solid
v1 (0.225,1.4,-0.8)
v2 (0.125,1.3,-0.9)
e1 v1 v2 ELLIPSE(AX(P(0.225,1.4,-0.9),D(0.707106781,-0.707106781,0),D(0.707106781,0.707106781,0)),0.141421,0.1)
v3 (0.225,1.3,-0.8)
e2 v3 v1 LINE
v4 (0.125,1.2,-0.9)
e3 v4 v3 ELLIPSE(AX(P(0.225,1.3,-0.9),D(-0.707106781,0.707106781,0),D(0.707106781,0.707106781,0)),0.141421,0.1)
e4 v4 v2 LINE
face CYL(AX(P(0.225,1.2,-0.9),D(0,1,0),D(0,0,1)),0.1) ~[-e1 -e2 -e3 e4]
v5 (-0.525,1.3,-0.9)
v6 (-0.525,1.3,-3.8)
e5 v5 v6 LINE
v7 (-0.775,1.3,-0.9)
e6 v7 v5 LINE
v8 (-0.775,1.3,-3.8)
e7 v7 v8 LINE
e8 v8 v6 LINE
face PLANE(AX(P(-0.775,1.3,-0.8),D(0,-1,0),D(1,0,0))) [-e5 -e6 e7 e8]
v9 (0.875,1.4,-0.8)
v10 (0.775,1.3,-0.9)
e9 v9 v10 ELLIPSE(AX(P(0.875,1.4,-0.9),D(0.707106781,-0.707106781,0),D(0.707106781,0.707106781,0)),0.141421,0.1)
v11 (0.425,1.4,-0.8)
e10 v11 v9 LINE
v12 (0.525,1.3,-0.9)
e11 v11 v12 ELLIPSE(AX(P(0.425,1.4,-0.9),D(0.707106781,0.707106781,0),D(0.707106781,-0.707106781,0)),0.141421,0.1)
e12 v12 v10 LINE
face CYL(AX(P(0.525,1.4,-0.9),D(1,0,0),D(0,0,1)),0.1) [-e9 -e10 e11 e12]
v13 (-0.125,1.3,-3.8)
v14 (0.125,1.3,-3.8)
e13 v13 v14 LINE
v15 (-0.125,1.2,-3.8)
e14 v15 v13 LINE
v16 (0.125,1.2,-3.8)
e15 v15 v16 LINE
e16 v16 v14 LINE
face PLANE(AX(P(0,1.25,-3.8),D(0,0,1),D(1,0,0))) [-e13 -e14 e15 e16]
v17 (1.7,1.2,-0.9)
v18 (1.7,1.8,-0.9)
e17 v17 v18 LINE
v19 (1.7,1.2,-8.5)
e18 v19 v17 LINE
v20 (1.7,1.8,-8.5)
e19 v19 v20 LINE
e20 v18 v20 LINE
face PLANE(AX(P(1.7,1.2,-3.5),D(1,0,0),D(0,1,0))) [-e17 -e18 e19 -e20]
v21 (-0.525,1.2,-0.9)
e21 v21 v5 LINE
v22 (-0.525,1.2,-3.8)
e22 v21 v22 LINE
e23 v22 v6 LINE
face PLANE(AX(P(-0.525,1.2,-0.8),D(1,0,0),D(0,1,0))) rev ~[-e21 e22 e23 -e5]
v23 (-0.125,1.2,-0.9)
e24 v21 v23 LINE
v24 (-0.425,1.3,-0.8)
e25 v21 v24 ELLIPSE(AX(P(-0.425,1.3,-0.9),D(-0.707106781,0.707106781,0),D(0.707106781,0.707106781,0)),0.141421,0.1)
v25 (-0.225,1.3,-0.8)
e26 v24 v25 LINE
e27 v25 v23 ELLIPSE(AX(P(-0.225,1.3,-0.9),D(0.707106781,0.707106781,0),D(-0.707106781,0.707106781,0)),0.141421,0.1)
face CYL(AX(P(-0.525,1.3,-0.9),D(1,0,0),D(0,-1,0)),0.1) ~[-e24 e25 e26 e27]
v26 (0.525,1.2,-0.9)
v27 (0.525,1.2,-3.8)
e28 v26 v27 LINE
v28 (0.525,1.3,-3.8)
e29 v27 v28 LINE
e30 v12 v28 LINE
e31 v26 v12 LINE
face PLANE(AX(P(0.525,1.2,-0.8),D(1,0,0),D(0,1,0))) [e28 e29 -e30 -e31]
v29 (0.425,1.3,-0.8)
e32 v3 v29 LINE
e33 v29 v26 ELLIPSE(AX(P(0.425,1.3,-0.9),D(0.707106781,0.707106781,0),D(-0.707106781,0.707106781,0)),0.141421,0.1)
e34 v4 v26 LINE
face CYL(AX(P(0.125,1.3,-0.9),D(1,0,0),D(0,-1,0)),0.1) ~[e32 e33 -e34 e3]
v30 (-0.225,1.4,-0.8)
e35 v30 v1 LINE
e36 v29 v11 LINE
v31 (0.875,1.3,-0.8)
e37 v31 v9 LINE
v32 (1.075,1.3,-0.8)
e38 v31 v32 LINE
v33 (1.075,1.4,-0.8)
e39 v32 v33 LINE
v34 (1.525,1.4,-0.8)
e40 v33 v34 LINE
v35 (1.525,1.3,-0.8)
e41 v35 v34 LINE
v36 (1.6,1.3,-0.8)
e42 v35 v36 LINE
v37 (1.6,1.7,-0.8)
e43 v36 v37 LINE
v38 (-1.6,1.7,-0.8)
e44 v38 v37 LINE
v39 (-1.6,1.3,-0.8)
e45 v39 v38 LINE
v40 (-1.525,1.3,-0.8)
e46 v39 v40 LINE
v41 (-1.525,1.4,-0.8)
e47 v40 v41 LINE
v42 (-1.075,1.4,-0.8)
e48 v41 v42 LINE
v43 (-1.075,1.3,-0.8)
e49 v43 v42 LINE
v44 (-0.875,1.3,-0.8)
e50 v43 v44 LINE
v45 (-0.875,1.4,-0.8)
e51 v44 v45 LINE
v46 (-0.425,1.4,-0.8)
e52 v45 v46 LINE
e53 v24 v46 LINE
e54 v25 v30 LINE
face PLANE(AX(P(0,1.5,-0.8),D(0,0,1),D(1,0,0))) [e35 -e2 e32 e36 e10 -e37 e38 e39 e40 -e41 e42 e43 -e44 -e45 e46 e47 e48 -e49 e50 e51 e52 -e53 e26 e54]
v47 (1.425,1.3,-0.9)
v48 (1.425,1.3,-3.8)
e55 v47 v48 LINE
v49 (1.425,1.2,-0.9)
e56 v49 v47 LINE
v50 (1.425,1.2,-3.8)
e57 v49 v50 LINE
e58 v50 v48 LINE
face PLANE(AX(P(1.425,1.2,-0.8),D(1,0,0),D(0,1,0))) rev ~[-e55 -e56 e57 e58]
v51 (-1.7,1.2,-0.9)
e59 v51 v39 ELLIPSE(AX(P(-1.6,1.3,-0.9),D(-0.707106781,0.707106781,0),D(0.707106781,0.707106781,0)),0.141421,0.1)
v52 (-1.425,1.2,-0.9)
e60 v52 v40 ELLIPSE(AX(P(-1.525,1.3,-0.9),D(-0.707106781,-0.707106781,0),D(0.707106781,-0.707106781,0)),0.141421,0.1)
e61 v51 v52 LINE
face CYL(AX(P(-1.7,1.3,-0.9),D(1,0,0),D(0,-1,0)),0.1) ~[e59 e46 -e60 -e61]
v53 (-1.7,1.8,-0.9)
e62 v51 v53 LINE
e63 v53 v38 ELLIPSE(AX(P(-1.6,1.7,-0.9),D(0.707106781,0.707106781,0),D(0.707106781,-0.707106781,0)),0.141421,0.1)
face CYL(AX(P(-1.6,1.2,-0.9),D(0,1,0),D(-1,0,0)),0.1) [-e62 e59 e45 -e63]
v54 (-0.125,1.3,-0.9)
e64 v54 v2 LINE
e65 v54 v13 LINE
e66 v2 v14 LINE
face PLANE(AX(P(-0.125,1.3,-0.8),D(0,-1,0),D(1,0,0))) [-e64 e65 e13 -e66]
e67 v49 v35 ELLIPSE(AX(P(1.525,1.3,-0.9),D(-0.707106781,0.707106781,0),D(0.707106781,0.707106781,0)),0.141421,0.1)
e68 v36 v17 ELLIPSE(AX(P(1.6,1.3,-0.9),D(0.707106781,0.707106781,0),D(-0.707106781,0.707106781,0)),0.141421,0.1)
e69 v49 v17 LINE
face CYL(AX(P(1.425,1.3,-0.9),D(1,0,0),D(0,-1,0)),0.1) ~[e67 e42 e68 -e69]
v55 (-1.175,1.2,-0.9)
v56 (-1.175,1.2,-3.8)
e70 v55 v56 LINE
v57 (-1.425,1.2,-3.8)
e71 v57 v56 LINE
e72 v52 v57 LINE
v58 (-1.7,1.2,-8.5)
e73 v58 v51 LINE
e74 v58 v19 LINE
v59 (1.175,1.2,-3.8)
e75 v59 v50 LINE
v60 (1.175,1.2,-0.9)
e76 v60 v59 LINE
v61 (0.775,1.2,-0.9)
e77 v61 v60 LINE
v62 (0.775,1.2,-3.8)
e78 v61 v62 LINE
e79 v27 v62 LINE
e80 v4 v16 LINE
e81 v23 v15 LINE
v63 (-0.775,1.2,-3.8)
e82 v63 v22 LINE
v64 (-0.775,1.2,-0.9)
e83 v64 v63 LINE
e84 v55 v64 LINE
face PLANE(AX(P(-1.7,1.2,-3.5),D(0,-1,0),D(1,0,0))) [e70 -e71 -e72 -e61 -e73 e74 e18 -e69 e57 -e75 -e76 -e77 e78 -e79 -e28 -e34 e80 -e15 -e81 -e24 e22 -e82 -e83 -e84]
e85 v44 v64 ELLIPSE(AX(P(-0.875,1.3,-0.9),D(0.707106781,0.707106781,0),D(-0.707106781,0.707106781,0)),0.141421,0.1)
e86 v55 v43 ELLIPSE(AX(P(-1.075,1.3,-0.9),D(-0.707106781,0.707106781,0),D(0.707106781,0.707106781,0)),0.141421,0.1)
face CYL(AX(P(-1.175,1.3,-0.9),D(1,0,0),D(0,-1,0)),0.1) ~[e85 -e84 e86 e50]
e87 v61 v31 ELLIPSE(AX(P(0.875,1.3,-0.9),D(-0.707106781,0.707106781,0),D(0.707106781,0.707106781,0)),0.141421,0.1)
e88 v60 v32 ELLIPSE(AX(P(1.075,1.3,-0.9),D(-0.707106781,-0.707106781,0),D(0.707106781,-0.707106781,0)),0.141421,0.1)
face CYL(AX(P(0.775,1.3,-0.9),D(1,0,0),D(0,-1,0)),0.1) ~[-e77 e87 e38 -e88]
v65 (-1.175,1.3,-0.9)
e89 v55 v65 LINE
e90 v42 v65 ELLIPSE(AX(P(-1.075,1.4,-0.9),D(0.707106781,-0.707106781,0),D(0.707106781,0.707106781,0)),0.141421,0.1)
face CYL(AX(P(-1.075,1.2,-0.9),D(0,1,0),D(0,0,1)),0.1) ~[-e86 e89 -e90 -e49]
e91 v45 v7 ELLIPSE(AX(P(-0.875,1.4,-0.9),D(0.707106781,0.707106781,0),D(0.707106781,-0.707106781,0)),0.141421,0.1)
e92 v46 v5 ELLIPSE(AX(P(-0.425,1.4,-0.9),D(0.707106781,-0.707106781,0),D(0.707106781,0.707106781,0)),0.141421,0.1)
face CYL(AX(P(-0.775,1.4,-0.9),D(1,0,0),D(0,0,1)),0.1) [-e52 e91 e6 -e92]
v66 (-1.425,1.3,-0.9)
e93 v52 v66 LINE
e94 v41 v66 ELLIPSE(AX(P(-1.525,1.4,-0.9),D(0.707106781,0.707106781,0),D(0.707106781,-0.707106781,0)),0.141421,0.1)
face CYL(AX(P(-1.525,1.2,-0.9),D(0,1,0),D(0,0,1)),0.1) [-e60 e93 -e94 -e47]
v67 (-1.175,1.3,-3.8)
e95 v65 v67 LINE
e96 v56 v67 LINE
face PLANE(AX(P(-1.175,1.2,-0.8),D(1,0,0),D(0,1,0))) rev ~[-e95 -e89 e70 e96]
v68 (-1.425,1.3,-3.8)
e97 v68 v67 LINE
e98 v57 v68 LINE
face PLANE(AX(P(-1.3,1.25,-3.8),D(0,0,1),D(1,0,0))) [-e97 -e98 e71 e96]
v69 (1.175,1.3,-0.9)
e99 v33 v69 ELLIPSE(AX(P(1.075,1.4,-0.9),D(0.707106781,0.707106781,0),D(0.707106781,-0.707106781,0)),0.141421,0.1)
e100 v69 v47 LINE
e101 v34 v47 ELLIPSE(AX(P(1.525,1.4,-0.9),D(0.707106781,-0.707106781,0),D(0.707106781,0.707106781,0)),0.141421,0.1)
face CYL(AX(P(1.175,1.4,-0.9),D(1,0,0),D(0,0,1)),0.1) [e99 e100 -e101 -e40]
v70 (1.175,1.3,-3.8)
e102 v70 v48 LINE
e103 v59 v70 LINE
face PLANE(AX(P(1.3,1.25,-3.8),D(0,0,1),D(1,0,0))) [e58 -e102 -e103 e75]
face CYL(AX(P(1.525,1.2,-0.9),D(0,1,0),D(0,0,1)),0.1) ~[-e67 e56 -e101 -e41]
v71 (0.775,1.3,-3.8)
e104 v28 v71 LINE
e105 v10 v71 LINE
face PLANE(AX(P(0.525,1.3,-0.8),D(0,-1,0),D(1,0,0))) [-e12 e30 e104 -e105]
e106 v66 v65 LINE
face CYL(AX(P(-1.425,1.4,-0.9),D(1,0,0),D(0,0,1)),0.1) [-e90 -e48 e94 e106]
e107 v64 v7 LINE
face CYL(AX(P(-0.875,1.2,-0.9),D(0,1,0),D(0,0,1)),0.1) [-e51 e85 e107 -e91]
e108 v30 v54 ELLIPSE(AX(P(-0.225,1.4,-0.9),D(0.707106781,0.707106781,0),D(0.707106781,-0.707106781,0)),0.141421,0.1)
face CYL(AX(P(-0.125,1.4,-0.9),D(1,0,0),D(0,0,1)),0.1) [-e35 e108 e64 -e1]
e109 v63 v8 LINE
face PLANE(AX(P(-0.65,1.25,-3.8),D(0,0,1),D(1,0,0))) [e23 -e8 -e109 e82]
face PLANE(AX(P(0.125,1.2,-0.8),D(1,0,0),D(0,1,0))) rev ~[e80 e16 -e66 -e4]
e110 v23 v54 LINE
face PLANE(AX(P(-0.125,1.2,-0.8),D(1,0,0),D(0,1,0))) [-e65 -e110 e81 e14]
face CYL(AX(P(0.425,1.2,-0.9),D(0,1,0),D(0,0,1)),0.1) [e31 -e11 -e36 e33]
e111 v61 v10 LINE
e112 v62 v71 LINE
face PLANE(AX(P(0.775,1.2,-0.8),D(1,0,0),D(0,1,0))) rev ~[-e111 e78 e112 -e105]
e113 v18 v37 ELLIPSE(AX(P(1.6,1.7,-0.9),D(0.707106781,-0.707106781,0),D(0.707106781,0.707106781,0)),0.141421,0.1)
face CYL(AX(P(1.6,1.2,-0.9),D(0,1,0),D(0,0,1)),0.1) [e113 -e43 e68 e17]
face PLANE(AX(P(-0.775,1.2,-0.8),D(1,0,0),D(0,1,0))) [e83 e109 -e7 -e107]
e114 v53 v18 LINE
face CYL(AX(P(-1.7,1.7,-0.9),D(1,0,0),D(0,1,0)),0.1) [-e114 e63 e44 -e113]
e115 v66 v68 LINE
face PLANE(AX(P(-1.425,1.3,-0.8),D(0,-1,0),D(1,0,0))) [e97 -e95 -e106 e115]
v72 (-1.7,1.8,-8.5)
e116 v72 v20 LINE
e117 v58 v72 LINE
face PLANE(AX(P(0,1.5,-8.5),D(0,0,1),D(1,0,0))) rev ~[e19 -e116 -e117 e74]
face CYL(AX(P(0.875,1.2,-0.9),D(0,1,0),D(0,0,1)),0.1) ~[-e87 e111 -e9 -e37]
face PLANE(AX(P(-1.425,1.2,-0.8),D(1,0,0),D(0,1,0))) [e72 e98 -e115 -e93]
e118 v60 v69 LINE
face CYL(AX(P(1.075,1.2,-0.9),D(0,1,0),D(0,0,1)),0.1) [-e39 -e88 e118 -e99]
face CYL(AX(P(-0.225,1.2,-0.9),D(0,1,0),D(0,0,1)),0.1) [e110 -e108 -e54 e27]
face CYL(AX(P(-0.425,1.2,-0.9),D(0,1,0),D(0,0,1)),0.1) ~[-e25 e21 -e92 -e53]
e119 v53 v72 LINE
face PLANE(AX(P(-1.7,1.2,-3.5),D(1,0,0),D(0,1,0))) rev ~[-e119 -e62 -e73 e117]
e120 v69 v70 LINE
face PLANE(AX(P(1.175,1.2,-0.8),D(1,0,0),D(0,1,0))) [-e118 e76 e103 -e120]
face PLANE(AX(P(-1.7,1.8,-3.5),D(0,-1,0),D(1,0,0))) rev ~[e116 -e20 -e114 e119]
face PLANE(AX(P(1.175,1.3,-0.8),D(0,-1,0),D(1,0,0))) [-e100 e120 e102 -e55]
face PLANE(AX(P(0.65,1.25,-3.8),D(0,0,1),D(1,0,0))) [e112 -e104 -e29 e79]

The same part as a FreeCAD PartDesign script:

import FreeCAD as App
import Part
import Sketcher

V = App.Vector


def edges_at(feature, points):
    """Names of the edges that pass closest to the given points."""
    edges = feature.Shape.Edges
    near = lambda p: min(range(len(edges)), key=lambda i: edges[i].distToShape(Part.Vertex(*p))[0])
    return sorted({f"Edge{near(p) + 1}" for p in points})


def add_polygon(sketch, points):
    """Adds a closed chain of lines whose ends are joined by coincident constraints."""
    first, n = sketch.GeometryCount, len(points)
    for a, b in zip(points, points[1:] + points[:1]):
        sketch.addGeometry(Part.LineSegment(App.Vector(*a, 0), App.Vector(*b, 0)), False)
    for i in range(n):
        sketch.addConstraint(Sketcher.Constraint("Coincident", first + i, 2, first + (i + 1) % n, 1))

doc = App.newDocument("Part")
body = doc.addObject("PartDesign::Body", "Body")

sketch1 = body.newObject("Sketcher::SketchObject", "Sketch")
sketch1.AttachmentSupport = (doc.getObject("XY_Plane"), [""])
sketch1.MapMode = "FlatFace"
sketch1.AttachmentOffset = App.Placement(V(0, 0, -3.5), App.Rotation())
add_polygon(sketch1, [(-1.7, 1.8), (-1.7, 1.2), (1.7, 1.2), (1.7, 1.8)])
sketch1.addConstraint([
    Sketcher.Constraint("Vertical", 0),
    Sketcher.Constraint("Horizontal", 1),
    Sketcher.Constraint("Vertical", 2),
    Sketcher.Constraint("Horizontal", 3),
    Sketcher.Constraint("DistanceX", 1, 1, 1, 2, 3.4),
    Sketcher.Constraint("DistanceY", 0, 2, 0, 1, 0.6),
    Sketcher.Constraint("DistanceX", 0, 2, -1, 1, 1.7),
    Sketcher.Constraint("DistanceY", -1, 1, 0, 2, 1.2),
])
pad1 = body.newObject("PartDesign::Pad", "Pad")
pad1.Profile = sketch1
pad1.Type = "TwoLengths"
pad1.Length = 2.7
pad1.Length2 = 5

sketch2 = body.newObject("Sketcher::SketchObject", "Sketch001")
sketch2.AttachmentSupport = (doc.getObject("XY_Plane"), [""])
sketch2.MapMode = "FlatFace"
sketch2.AttachmentOffset = App.Placement(V(0, 0, -0.8), App.Rotation())
add_polygon(sketch2, [(-1.43, 1.3), (-1.43, 1.2), (-1.18, 1.2), (-1.18, 1.3)])
add_polygon(sketch2, [(-0.78, 1.3), (-0.78, 1.2), (-0.53, 1.2), (-0.53, 1.3)])
add_polygon(sketch2, [(-0.12, 1.3), (-0.12, 1.2), (0.12, 1.2), (0.12, 1.3)])
add_polygon(sketch2, [(0.53, 1.3), (0.53, 1.2), (0.78, 1.2), (0.78, 1.3)])
add_polygon(sketch2, [(1.18, 1.3), (1.18, 1.2), (1.43, 1.2), (1.43, 1.3)])
sketch2.addConstraint([
    Sketcher.Constraint("Vertical", 0),
    Sketcher.Constraint("Horizontal", 1),
    Sketcher.Constraint("Vertical", 2),
    Sketcher.Constraint("Horizontal", 3),
    Sketcher.Constraint("Vertical", 4),
    Sketcher.Constraint("Horizontal", 5),
    Sketcher.Constraint("Vertical", 6),
    Sketcher.Constraint("Horizontal", 7),
    Sketcher.Constraint("Vertical", 8),
    Sketcher.Constraint("Horizontal", 9),
    Sketcher.Constraint("Vertical", 10),
    Sketcher.Constraint("Horizontal", 11),
    Sketcher.Constraint("Vertical", 12),
    Sketcher.Constraint("Horizontal", 13),
    Sketcher.Constraint("Vertical", 14),
    Sketcher.Constraint("Horizontal", 15),
    Sketcher.Constraint("Vertical", 16),
    Sketcher.Constraint("Horizontal", 17),
    Sketcher.Constraint("Vertical", 18),
    Sketcher.Constraint("Horizontal", 19),
    Sketcher.Constraint("Symmetric", 5, 2, 12, 2, -2),
    Sketcher.Constraint("Symmetric", 7, 2, 14, 2, -2),
    Sketcher.Constraint("Symmetric", 1, 2, 16, 2, -2),
    Sketcher.Constraint("Symmetric", 3, 2, 18, 2, -2),
    Sketcher.Constraint("Horizontal", 1, 2, 4, 2),
    Sketcher.Constraint("Horizontal", 3, 2, 6, 2),
    Sketcher.Constraint("Horizontal", 5, 2, 8, 2),
    Sketcher.Constraint("Horizontal", 7, 2, 10, 2),
    Sketcher.Constraint("Equal", 3, 5),
    Sketcher.Constraint("Equal", 7, 9),
    Sketcher.Constraint("DistanceY", 0, 2, 0, 1, 0.1),
    Sketcher.Constraint("DistanceX", 1, 1, 1, 2, 0.25),
    Sketcher.Constraint("DistanceY", -1, 1, 0, 2, 1.2),
    Sketcher.Constraint("DistanceX", 1, 2, 4, 2, 0.4),
    Sketcher.Constraint("DistanceX", 5, 2, 8, 2, 0.4),
    Sketcher.Constraint("DistanceX", 9, 2, 12, 2, 0.4),
])
pocket1 = body.newObject("PartDesign::Pocket", "Pocket")
pocket1.Profile = sketch2
pocket1.Length = 3
doc.recompute()

fillet = body.newObject("PartDesign::Fillet", "Fillet")
fillet.Base = (pocket1, edges_at(pocket1, [
    (0, 1.8, -0.8),
    (1.7, 1.5, -0.8),
    (1.562, 1.2, -0.8),
    (-1.562, 1.2, -0.8),
    (-1.7, 1.5, -0.8),
    (0.975, 1.2, -0.8),
    (0.775, 1.25, -0.8),
    (0.65, 1.3, -0.8),
    (0.525, 1.25, -0.8),
    (0.325, 1.2, -0.8),
    (0.125, 1.25, -0.8),
    (0, 1.3, -0.8),
    (-0.125, 1.25, -0.8),
    (-0.325, 1.2, -0.8),
    (-0.525, 1.25, -0.8),
    (-0.65, 1.3, -0.8),
    (-0.775, 1.25, -0.8),
    (-0.975, 1.2, -0.8),
    (-1.175, 1.25, -0.8),
    (-1.3, 1.3, -0.8),
    (-1.425, 1.25, -0.8),
    (1.425, 1.25, -0.8),
    (1.3, 1.3, -0.8),
    (1.175, 1.25, -0.8),
]))
fillet.Radius = 0.1

doc.recompute()
